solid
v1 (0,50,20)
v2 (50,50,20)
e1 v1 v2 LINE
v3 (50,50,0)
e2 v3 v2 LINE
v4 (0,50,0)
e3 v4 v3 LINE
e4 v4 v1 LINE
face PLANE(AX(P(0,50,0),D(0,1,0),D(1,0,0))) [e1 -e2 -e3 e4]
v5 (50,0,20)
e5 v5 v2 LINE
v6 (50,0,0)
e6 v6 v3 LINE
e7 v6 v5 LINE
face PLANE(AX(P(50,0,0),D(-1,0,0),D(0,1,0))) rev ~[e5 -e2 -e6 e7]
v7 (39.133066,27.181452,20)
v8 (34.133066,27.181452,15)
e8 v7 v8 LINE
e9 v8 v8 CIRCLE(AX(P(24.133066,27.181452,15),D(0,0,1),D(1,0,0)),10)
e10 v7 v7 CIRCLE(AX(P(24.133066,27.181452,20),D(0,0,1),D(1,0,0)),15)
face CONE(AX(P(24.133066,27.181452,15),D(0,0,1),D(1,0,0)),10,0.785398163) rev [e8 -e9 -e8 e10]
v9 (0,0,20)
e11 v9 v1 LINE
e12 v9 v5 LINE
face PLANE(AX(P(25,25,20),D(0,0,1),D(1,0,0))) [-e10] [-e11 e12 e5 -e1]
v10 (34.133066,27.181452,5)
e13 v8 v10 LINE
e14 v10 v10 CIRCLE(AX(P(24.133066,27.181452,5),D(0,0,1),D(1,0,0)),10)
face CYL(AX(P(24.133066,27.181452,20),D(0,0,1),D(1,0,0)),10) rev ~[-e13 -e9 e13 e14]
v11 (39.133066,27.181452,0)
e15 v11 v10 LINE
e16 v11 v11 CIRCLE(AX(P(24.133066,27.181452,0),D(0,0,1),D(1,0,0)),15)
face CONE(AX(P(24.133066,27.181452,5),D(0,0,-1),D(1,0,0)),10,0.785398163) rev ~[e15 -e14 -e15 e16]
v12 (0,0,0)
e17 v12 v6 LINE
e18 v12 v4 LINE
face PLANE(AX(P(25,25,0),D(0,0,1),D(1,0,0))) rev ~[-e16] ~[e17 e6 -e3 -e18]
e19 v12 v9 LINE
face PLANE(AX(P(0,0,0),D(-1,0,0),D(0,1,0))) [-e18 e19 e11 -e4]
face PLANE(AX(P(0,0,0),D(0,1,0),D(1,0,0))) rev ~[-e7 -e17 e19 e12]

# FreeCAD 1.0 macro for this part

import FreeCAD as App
import Part
import Sketcher
from FreeCAD import Vector


def edges_at(feature, points):
    """Names of the edges that pass closest to the given points."""
    edges = feature.Shape.Edges
    near = lambda p: min(range(len(edges)), key=lambda i: edges[i].distToShape(Part.Vertex(*p))[0])
    return sorted({f"Edge{near(p) + 1}" for p in points})


def add_polygon(sketch, points):
    """Adds a closed chain of lines whose ends are joined by coincident constraints."""
    first, n = sketch.GeometryCount, len(points)
    for a, b in zip(points, points[1:] + points[:1]):
        sketch.addGeometry(Part.LineSegment(App.Vector(*a, 0), App.Vector(*b, 0)), False)
    for i in range(n):
        sketch.addConstraint(Sketcher.Constraint("Coincident", first + i, 2, first + (i + 1) % n, 1))

doc = App.newDocument("Part")
body = doc.addObject("PartDesign::Body", "Body")

# Sketch on XY plane
sketch1 = doc.addObject("Sketcher::SketchObject", "Sketch")
body.addObject(sketch1)
sketch1.AttachmentSupport = (doc.XY_Plane, [""])
sketch1.MapMode = "FlatFace"
add_polygon(sketch1, [(0, 50), (0, 0), (50, 0), (50, 50)])  # lines 0-3
sketch1.addConstraint([
    Sketcher.Constraint("Vertical", 0),
    Sketcher.Constraint("Horizontal", 1),
    Sketcher.Constraint("Vertical", 2),
    Sketcher.Constraint("Horizontal", 3),
    Sketcher.Constraint("Coincident", 0, 2, -1, 1),
    Sketcher.Constraint("Equal", 3, 0),
    Sketcher.Constraint("DistanceX", 1, 1, 1, 2, 50.0),
])
pad1 = doc.addObject("PartDesign::Pad", "Pad")
body.addObject(pad1)
pad1.Profile = sketch1
pad1.Length = 20

# Sketch on XY plane
sketch2 = doc.addObject("Sketcher::SketchObject", "Sketch001")
body.addObject(sketch2)
sketch2.AttachmentSupport = (doc.XY_Plane, [""])
sketch2.MapMode = "FlatFace"
sketch2.AttachmentOffset = App.Placement(Vector(0, 0, 20), App.Rotation())
sketch2.addGeometry(Part.Circle(Vector(24, 27, 0), Vector(0, 0, 1), 10), False)
sketch2.addConstraint([
    Sketcher.Constraint("Diameter", 0, 20.0),
    Sketcher.Constraint("DistanceY", -1, 1, 0, 3, 27.181452),
    Sketcher.Constraint("DistanceX", -1, 1, 0, 3, 24.133066),
])
pocket1 = doc.addObject("PartDesign::Pocket", "Pocket")
body.addObject(pocket1)
pocket1.Profile = sketch2
pocket1.Length = 25
doc.recompute()

chamfer = doc.addObject("PartDesign::Chamfer", "Chamfer")
body.addObject(chamfer)
chamfer.Base = (pocket1, edges_at(pocket1, [(14.133, 27.181, 20), (14.133, 27.181, 0)]))
chamfer.Size = 5

doc.recompute()
